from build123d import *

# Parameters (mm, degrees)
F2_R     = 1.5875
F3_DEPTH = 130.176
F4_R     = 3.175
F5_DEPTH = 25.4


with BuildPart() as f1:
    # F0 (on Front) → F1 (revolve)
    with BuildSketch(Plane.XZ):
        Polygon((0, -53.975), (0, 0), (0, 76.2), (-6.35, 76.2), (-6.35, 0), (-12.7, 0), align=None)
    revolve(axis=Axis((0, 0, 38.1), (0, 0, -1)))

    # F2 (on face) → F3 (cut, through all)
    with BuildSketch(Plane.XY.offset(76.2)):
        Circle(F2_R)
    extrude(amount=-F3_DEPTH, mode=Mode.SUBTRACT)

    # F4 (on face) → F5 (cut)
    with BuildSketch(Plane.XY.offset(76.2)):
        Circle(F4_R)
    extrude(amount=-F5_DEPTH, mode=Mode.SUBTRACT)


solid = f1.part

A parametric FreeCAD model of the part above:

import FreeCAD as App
import Part
import Sketcher
Q = App.Units.Quantity

doc = App.newDocument("Part")
body = doc.addObject("PartDesign::Body", "Body")

sketch1 = body.newObject("Sketcher::SketchObject", "Sketch")
sketch1.AttachmentSupport = (doc.getObject("XZ_Plane"), [""])
sketch1.MapMode = "FlatFace"
sketch1.addGeometry([
    Part.LineSegment(App.Vector(0, -54, 0), App.Vector(0, 76, 0)),
    Part.LineSegment(App.Vector(0, 76, 0), App.Vector(-6, 76, 0)),
    Part.LineSegment(App.Vector(-6, 76, 0), App.Vector(-6, 0, 0)),
    Part.LineSegment(App.Vector(-6, 0, 0), App.Vector(-13, 0, 0)),
    Part.LineSegment(App.Vector(-13, 0, 0), App.Vector(0, -54, 0)),
], False)
sketch1.addConstraint([
    Sketcher.Constraint("Coincident", 0, 2, 1, 1),
    Sketcher.Constraint("Coincident", 1, 2, 2, 1),
    Sketcher.Constraint("Coincident", 2, 2, 3, 1),
    Sketcher.Constraint("Coincident", 3, 2, 4, 1),
    Sketcher.Constraint("Coincident", 4, 2, 0, 1),
    Sketcher.Constraint("Vertical", 0),
    Sketcher.Constraint("Horizontal", 1),
    Sketcher.Constraint("Vertical", 2),
    Sketcher.Constraint("Horizontal", 3),
    Sketcher.Constraint("PointOnObject", 0, 2, -2),
    Sketcher.Constraint("PointOnObject", 2, 2, -1),
    Sketcher.Constraint("Equal", 1, 3),
    Sketcher.Constraint("DistanceY", 2, 2, 2, 1, Q("3 in")),
    Sketcher.Constraint("DistanceX", 1, 2, 1, 1, Q("0.25 in")),
    Sketcher.Constraint("DistanceY", 0, 1, 0, 2, Q("5.125 in")),
])
revolution = body.newObject("PartDesign::Revolution", "Revolution")
revolution.Profile = sketch1
revolution.ReferenceAxis = (sketch1, ["V_Axis"])
revolution.Angle = 360

sketch2 = body.newObject("Sketcher::SketchObject", "Sketch001")
sketch2.AttachmentSupport = (doc.getObject("XY_Plane"), [""])
sketch2.MapMode = "FlatFace"
sketch2.AttachmentOffset = App.Placement(App.Vector(0, 0, 3 * 25.4), App.Rotation())
sketch2.addGeometry(Part.Circle(App.Vector(0, 0, 0), App.Vector(0, 0, 1), 1.6), False)
sketch2.addConstraint([
    Sketcher.Constraint("Coincident", 0, 3, -1, 1),
    Sketcher.Constraint("Diameter", 0, Q("0.125 in")),
])
pocket1 = body.newObject("PartDesign::Pocket", "Pocket")
pocket1.Profile = sketch2
pocket1.Type = "ThroughAll"

sketch3 = body.newObject("Sketcher::SketchObject", "Sketch002")
sketch3.AttachmentSupport = (doc.getObject("XY_Plane"), [""])
sketch3.MapMode = "FlatFace"
sketch3.AttachmentOffset = App.Placement(App.Vector(0, 0, 3 * 25.4), App.Rotation())
sketch3.addGeometry(Part.Circle(App.Vector(0, 0, 0), App.Vector(0, 0, 1), 3.2), False)
sketch3.addConstraint([
    Sketcher.Constraint("Coincident", 0, 3, -1, 1),
    Sketcher.Constraint("Diameter", 0, Q("0.25 in")),
])
pocket2 = body.newObject("PartDesign::Pocket", "Pocket001")
pocket2.Profile = sketch3
pocket2.Length = Q("1 in")

doc.recompute()
